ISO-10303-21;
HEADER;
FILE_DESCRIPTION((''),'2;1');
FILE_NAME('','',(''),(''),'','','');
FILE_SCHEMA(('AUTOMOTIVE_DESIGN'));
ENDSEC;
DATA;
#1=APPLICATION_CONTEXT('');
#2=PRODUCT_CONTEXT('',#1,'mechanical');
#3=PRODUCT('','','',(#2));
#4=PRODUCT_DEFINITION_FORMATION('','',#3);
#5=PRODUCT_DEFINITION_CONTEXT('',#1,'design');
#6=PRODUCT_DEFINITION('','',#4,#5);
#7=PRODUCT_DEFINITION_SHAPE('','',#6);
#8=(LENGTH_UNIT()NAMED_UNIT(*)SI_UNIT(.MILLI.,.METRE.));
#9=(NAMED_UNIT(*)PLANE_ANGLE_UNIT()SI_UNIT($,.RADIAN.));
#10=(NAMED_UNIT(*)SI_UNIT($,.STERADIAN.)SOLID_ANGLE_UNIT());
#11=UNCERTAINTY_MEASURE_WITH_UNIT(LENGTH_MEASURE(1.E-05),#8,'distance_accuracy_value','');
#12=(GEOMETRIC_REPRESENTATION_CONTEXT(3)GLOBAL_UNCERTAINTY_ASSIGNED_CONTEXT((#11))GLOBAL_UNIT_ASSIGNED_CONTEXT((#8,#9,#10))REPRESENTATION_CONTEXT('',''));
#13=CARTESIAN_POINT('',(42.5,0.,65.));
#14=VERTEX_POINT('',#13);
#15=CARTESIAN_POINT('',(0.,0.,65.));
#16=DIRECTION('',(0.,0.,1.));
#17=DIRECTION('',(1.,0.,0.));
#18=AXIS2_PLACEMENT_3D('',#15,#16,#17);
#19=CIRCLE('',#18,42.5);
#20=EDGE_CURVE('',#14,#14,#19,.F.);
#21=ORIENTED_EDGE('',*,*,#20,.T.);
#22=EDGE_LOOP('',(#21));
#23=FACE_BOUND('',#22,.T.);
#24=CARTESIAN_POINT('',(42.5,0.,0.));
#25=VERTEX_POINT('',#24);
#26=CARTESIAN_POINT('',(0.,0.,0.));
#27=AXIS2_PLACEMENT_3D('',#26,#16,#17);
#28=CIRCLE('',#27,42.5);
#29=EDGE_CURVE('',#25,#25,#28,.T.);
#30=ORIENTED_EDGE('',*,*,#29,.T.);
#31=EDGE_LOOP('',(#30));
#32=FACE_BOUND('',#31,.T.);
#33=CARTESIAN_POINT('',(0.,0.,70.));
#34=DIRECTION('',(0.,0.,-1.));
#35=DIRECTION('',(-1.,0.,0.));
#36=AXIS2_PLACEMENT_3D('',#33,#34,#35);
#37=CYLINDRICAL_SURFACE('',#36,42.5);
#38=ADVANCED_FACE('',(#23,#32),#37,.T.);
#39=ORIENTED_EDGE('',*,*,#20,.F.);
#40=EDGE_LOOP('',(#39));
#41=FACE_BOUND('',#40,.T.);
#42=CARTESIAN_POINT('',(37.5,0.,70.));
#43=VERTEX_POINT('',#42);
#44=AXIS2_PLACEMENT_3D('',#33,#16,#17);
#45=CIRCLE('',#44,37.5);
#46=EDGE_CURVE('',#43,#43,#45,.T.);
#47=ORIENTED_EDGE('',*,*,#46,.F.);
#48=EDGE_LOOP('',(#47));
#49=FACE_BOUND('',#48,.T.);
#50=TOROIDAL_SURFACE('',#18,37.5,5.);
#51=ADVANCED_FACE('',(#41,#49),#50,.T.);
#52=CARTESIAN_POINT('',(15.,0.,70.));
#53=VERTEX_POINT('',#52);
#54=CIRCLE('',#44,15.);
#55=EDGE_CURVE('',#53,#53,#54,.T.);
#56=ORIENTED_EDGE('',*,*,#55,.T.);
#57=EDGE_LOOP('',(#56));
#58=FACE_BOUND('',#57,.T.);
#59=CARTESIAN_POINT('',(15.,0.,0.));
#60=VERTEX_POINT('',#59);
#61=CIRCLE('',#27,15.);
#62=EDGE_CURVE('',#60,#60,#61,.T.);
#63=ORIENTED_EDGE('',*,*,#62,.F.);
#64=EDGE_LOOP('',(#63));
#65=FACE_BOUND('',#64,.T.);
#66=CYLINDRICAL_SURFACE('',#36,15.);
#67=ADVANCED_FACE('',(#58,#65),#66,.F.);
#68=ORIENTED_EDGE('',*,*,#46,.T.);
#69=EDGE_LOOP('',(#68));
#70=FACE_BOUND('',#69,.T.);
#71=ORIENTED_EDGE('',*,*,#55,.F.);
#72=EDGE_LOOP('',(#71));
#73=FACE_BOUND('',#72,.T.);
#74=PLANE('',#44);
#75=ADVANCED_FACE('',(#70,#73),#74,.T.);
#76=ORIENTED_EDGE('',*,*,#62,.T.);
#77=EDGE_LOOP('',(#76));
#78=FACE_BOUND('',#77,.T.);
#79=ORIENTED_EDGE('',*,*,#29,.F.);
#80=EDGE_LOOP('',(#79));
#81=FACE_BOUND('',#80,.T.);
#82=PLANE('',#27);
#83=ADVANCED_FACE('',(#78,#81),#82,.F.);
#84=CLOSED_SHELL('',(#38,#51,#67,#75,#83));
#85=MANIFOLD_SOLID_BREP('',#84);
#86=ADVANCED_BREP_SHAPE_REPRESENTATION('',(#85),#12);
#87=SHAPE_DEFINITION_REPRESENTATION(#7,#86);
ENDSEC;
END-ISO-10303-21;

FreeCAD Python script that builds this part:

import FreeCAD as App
import Part
import Sketcher
from FreeCAD import Vector


def edges_at(feature, points):
    """Names of the edges that pass closest to the given points."""
    edges = feature.Shape.Edges
    near = lambda p: min(range(len(edges)), key=lambda i: edges[i].distToShape(Part.Vertex(*p))[0])
    return sorted({f"Edge{near(p) + 1}" for p in points})

doc = App.newDocument("Part")
body = doc.addObject("PartDesign::Body", "Body")

# Sketch on XY plane
sketch1 = body.newObject("Sketcher::SketchObject", "Sketch")
sketch1.AttachmentSupport = (doc.getObject("XY_Plane"), [""])
sketch1.MapMode = "FlatFace"
sketch1.addGeometry(Part.Circle(Vector(0, 0, 0), Vector(0, 0, 1), 42), False)
sketch1.addGeometry(Part.Circle(Vector(0, 0, 0), Vector(0, 0, 1), 15), False)
sketch1.addConstraint(Sketcher.Constraint("Coincident", 0, 3, -1, 1))
sketch1.addConstraint(Sketcher.Constraint("Coincident", 1, 3, -1, 1))
sketch1.addConstraint(Sketcher.Constraint("Diameter", 0, 85.0))
sketch1.addConstraint(Sketcher.Constraint("Diameter", 1, 30.0))
pad1 = body.newObject("PartDesign::Pad", "Pad")
pad1.Profile = sketch1
pad1.Length = 70
doc.recompute()

fillet = body.newObject("PartDesign::Fillet", "Fillet")
fillet.Base = (pad1, edges_at(pad1, [(-42.5, 0, 70)]))
fillet.Radius = 5

doc.recompute()
